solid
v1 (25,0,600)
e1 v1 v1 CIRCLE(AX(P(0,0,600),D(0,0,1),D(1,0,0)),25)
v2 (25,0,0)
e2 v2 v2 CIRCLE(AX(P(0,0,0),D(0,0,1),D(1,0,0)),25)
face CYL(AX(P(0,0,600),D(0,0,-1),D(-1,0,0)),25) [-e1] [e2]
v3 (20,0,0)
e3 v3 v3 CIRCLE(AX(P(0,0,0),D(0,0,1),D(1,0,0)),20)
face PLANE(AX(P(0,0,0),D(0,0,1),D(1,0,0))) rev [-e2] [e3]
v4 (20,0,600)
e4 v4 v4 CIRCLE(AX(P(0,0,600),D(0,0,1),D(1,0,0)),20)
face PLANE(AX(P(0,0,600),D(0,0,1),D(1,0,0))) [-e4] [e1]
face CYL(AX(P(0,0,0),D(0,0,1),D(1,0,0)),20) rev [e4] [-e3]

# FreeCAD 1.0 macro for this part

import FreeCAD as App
import Part
import Sketcher
from FreeCAD import Vector

doc = App.newDocument("Part")
body = doc.addObject("PartDesign::Body", "Body")

sketch1 = body.newObject("Sketcher::SketchObject", "Sketch")
sketch1.AttachmentSupport = (doc.getObject("XY_Plane"), [""])
sketch1.MapMode = "FlatFace"
sketch1.addGeometry(Part.Circle(Vector(0, 0, 0), Vector(0, 0, 1), 25), False)
sketch1.addConstraint([
    Sketcher.Constraint("Coincident", 0, 3, -1, 1),
    Sketcher.Constraint("Diameter", 0, 50.0),
])
pad1 = body.newObject("PartDesign::Pad", "Pad")
pad1.Profile = sketch1
pad1.Length = 600

sketch2 = body.newObject("Sketcher::SketchObject", "Sketch001")
sketch2.AttachmentSupport = (doc.getObject("XY_Plane"), [""])
sketch2.MapMode = "FlatFace"
sketch2.AttachmentOffset = App.Placement(Vector(0, 0, 600), App.Rotation())
sketch2.addGeometry(Part.Circle(Vector(0, 0, 0), Vector(0, 0, 1), 20), False)
sketch2.addConstraint([
    Sketcher.Constraint("Coincident", 0, 3, -1, 1),
    Sketcher.Constraint("Diameter", 0, 40.0),
])
pocket1 = body.newObject("PartDesign::Pocket", "Pocket")
pocket1.Profile = sketch2
pocket1.Length = 600

doc.recompute()
